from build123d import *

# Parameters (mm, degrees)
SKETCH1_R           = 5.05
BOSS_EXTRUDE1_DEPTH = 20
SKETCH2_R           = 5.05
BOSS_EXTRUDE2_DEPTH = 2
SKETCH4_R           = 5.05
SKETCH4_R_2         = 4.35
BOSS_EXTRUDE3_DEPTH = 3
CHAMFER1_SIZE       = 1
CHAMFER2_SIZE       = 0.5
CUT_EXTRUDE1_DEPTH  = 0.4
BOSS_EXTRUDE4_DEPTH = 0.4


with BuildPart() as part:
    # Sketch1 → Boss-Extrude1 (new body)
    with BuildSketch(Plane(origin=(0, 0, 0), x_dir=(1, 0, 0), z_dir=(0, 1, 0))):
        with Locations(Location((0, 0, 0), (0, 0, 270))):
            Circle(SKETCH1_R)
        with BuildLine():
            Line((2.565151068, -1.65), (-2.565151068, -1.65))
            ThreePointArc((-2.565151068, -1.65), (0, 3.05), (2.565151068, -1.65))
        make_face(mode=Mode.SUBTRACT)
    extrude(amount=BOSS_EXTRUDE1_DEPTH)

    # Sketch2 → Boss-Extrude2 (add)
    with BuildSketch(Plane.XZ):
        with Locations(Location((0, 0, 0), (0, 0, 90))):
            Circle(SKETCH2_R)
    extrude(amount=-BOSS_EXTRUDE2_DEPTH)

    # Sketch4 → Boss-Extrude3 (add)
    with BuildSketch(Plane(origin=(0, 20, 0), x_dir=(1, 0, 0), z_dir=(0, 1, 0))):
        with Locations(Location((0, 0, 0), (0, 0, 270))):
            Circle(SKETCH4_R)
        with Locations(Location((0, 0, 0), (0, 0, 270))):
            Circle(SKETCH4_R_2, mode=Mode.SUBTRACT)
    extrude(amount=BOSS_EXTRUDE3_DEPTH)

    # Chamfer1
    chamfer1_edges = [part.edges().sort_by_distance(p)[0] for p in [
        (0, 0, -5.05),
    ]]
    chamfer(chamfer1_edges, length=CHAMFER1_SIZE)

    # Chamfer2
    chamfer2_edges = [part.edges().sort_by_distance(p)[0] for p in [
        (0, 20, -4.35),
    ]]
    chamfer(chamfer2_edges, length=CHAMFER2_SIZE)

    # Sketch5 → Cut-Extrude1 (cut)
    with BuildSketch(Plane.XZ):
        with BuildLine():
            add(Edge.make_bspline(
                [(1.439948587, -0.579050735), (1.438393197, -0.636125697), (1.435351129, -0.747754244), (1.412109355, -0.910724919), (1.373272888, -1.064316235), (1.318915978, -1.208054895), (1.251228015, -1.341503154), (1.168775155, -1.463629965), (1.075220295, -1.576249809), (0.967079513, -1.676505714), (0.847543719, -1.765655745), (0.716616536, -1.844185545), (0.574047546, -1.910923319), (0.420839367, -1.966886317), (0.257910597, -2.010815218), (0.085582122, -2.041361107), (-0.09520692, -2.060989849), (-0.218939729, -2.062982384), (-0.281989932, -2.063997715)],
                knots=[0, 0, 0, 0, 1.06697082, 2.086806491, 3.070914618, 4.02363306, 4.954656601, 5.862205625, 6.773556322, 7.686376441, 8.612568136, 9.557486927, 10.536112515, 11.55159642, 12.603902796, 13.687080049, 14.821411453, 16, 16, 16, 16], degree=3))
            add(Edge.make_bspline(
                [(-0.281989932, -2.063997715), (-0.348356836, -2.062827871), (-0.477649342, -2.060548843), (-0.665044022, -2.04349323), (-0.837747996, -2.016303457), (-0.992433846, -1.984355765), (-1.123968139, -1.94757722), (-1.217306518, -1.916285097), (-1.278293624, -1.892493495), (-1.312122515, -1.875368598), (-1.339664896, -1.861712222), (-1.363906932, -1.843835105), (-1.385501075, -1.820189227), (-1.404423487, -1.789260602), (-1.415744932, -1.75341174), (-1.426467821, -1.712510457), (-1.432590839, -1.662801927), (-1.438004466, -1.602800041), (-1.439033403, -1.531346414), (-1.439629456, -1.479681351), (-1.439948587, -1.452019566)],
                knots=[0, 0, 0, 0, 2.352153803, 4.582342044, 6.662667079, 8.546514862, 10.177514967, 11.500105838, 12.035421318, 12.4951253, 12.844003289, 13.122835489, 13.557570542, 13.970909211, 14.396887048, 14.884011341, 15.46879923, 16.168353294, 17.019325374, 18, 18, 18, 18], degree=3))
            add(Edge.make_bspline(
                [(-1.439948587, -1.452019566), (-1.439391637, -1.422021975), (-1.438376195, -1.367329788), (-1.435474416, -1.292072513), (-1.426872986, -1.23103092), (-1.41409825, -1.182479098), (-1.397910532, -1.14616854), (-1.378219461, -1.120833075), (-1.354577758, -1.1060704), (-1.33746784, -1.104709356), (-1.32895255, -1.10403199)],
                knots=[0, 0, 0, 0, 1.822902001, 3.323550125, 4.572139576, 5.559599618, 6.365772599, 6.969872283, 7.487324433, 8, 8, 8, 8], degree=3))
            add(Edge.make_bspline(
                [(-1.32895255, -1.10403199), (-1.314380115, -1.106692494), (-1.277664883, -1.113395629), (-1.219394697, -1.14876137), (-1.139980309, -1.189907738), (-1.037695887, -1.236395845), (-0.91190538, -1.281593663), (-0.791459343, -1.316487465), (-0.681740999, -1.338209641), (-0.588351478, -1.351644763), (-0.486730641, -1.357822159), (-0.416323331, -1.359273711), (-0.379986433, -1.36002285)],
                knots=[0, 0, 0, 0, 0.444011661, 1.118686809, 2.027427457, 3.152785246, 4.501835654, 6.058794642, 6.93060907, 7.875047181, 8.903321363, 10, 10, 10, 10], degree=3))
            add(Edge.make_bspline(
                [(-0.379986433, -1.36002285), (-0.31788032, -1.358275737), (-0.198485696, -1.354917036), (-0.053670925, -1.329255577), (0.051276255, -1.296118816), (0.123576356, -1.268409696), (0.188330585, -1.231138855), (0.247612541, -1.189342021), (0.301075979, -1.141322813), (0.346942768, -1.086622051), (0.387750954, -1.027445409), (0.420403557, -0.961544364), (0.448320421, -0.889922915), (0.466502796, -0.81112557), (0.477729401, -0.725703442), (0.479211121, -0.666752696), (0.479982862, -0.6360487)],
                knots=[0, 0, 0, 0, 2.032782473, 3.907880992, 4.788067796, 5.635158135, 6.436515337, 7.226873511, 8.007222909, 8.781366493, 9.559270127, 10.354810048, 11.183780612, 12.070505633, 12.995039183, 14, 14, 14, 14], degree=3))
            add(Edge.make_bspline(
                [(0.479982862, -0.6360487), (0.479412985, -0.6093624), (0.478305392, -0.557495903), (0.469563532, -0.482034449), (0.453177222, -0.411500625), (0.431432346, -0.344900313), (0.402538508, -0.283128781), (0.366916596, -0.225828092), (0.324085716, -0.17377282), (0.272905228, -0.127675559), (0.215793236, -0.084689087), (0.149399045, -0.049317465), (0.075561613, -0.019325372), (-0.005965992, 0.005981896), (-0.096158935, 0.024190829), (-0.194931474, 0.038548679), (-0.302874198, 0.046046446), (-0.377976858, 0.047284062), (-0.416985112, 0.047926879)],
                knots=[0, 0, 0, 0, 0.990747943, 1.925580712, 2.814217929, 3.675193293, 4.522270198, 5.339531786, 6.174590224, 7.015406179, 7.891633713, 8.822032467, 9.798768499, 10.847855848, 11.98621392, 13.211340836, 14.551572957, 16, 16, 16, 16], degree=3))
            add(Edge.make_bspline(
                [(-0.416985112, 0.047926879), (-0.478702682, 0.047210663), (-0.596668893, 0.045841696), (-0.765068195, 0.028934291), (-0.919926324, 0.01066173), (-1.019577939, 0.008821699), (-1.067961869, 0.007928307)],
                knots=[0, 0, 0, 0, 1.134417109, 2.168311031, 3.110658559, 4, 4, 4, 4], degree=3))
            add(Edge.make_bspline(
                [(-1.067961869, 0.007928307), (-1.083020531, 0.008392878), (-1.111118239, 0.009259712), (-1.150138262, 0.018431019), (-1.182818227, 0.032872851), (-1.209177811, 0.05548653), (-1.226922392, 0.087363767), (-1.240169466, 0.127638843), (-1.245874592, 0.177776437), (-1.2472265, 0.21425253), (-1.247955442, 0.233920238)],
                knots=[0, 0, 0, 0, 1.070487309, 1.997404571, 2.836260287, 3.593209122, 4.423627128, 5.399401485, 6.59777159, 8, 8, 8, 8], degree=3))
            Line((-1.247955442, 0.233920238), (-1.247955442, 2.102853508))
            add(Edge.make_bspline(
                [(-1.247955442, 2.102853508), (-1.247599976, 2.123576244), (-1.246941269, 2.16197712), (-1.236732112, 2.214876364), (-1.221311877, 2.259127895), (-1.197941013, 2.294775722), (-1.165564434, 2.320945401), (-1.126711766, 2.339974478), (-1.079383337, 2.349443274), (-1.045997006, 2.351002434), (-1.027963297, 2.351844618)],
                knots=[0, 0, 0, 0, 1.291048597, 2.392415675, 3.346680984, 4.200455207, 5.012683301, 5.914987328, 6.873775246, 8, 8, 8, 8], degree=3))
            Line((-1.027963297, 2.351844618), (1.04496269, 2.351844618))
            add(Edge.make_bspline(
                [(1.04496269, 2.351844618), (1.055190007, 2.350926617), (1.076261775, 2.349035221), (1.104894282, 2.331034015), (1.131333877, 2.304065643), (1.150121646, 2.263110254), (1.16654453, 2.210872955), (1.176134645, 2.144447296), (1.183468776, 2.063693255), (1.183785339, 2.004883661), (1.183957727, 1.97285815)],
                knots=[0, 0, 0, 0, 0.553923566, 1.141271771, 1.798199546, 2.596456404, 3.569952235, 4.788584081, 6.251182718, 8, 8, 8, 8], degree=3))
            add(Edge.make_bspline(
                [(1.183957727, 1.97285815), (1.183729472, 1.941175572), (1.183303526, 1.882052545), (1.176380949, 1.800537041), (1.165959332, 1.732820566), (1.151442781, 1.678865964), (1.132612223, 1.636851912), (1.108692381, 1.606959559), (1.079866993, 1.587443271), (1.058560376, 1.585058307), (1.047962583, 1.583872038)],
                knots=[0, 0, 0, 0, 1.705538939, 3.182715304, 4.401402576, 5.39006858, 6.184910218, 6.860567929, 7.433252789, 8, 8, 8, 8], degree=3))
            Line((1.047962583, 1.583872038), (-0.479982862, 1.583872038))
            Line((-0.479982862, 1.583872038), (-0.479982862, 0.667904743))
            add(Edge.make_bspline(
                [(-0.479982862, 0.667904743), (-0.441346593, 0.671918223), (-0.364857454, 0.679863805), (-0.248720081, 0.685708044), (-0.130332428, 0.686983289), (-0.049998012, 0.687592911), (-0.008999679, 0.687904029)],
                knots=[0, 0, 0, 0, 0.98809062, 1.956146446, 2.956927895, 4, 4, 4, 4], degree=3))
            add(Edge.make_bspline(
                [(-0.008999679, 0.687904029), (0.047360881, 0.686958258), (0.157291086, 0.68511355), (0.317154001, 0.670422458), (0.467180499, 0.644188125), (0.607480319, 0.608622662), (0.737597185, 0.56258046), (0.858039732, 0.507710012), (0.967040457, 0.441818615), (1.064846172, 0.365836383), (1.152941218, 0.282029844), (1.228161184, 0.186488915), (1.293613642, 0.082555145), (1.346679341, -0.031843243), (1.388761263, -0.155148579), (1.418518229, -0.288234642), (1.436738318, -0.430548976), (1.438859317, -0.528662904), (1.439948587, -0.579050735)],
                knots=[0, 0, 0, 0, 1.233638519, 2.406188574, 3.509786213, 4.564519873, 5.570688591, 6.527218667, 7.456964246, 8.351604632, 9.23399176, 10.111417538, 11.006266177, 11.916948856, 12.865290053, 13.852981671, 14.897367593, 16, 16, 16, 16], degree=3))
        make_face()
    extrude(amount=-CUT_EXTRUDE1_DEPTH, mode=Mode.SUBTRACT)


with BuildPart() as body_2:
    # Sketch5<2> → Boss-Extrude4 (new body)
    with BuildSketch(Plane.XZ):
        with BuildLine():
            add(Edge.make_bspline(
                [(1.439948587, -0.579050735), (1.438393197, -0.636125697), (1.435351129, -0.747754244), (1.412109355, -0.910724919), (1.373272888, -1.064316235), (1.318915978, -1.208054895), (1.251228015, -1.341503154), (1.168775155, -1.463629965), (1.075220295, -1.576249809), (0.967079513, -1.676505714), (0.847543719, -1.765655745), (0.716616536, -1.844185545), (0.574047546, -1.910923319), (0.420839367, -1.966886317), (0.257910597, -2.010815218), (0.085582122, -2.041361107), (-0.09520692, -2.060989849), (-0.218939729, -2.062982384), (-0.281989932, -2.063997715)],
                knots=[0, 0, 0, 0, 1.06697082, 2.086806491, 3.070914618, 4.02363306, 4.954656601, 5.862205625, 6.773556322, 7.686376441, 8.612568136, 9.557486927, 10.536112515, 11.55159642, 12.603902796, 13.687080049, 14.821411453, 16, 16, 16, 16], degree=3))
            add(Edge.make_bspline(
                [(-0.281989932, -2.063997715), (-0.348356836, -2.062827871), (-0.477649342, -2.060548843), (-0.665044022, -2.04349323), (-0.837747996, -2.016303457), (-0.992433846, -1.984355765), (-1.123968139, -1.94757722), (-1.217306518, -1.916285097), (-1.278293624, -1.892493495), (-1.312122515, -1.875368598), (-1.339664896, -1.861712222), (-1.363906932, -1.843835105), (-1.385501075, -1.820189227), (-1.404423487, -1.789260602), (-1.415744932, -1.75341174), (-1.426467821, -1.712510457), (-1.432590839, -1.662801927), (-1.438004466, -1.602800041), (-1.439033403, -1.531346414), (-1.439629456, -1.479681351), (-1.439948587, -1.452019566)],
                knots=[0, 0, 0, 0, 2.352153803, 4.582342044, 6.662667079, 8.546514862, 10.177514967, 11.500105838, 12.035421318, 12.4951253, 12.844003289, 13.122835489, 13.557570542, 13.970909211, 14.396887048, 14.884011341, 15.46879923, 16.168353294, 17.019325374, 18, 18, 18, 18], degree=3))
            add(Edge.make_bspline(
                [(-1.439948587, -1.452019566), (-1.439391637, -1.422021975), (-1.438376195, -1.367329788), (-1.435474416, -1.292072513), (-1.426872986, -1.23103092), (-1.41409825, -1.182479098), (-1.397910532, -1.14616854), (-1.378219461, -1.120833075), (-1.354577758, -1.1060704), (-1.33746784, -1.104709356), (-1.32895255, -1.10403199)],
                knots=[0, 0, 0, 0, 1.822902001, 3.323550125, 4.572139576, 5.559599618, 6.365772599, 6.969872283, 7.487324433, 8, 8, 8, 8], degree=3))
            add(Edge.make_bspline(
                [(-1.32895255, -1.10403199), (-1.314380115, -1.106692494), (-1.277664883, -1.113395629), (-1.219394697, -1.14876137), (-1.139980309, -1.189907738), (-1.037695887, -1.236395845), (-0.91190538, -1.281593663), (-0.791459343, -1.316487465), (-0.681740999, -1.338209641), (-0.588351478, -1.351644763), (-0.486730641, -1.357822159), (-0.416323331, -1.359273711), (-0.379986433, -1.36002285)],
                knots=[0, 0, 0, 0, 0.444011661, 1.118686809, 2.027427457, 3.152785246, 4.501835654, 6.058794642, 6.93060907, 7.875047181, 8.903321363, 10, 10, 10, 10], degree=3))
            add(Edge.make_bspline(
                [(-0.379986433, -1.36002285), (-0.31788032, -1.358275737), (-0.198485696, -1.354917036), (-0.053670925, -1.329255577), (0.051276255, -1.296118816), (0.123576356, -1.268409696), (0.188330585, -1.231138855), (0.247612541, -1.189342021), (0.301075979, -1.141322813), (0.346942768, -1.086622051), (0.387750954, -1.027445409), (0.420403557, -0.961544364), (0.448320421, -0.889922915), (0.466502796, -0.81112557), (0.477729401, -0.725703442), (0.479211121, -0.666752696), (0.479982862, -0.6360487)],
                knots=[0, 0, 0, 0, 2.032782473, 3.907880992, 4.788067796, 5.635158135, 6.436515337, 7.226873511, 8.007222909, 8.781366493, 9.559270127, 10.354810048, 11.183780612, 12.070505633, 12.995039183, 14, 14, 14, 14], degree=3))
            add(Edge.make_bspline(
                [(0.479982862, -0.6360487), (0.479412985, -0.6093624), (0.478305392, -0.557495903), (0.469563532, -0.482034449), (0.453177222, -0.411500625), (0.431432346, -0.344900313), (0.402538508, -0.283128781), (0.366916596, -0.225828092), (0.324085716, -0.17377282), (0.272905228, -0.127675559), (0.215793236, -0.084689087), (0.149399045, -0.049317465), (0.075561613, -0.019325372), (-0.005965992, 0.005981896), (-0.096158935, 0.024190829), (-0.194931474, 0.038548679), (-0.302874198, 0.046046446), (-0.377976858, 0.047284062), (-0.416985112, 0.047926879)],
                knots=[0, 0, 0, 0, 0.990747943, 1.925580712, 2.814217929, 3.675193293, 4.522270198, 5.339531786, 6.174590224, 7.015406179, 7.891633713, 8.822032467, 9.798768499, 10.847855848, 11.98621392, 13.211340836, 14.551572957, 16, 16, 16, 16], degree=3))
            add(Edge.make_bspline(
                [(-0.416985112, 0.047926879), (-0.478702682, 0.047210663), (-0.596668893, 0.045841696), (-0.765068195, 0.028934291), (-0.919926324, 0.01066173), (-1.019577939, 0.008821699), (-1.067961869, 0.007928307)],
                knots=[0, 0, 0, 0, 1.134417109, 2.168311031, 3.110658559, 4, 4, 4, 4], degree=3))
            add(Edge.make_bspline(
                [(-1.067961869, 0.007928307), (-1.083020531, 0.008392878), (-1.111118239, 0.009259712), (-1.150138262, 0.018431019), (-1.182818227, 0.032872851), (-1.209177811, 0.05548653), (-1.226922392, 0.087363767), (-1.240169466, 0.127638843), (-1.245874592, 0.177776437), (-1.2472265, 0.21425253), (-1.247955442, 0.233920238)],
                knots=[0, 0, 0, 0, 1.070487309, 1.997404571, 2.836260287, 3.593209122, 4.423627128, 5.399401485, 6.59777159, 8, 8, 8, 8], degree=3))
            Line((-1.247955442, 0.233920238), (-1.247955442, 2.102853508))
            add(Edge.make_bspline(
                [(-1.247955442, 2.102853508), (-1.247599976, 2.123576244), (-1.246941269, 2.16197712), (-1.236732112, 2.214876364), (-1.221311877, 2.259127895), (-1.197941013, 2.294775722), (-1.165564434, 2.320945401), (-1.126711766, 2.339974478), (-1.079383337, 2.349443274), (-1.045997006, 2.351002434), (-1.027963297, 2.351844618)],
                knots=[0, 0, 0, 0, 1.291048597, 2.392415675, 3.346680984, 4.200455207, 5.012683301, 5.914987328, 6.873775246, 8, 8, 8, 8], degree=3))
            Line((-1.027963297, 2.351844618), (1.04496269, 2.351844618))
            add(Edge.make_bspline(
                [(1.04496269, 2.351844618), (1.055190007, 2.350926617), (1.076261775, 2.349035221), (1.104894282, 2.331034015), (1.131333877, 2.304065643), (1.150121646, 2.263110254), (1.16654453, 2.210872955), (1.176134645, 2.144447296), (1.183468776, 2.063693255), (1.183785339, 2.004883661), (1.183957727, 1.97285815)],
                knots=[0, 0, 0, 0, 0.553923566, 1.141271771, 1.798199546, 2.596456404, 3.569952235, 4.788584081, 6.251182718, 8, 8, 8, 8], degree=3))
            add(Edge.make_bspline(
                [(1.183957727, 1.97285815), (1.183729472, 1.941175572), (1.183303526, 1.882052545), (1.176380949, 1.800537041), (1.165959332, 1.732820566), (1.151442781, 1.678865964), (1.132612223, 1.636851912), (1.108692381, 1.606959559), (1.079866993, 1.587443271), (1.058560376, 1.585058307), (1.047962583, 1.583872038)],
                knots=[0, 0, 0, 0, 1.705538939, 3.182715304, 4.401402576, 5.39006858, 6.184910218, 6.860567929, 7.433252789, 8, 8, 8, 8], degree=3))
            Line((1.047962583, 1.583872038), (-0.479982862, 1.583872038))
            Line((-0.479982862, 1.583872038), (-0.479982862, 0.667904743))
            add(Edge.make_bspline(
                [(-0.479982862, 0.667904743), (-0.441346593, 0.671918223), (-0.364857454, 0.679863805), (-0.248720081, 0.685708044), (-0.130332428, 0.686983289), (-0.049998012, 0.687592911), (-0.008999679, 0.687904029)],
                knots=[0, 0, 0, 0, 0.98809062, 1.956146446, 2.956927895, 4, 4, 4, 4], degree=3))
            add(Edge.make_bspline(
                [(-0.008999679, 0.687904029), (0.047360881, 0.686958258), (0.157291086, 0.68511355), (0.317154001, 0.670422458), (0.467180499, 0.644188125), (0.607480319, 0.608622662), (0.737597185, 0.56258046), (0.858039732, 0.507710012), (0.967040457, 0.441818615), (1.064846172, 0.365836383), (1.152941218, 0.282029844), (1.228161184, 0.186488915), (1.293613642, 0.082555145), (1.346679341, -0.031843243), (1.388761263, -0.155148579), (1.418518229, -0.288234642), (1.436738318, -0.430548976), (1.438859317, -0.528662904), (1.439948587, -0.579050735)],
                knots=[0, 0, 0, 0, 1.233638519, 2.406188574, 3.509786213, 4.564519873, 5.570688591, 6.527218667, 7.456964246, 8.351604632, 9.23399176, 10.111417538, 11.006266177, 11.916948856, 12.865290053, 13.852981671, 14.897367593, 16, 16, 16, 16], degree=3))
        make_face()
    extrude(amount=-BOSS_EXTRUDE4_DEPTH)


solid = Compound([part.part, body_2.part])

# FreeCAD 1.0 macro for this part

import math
import FreeCAD as App
import Part
import Sketcher


def edges_at(feature, points):
    """Names of the edges that pass closest to the given points."""
    edges = feature.Shape.Edges
    near = lambda p: min(range(len(edges)), key=lambda i: edges[i].distToShape(Part.Vertex(*p))[0])
    return sorted({f"Edge{near(p) + 1}" for p in points})

doc = App.newDocument("Part")
body = doc.addObject("PartDesign::Body", "Body")

# Sketch on XZ plane
sketch1 = body.newObject("Sketcher::SketchObject", "Sketch")
sketch1.AttachmentSupport = (doc.getObject("XZ_Plane"), [""])
sketch1.MapMode = "FlatFace"
sketch1.addGeometry(Part.Circle(App.Vector(0, 0, 0), App.Vector(0, 0, 1), 5), False)
sketch1.addGeometry(Part.ArcOfCircle(Part.Circle(App.Vector(0, 0, 0), App.Vector(0, 0, 1), 3), math.radians(147), math.radians(393)), False)
sketch1.addGeometry(Part.LineSegment(App.Vector(2.6, 1.6, 0), App.Vector(-2.6, 1.6, 0)), False)
sketch1.addConstraint(Sketcher.Constraint("Coincident", 1, 1, 2, 2))
sketch1.addConstraint(Sketcher.Constraint("Coincident", 2, 1, 1, 2))
sketch1.addConstraint(Sketcher.Constraint("Horizontal", 2))
sketch1.addConstraint(Sketcher.Constraint("Coincident", 0, 3, -1, 1))
sketch1.addConstraint(Sketcher.Constraint("Coincident", 1, 3, -1, 1))
sketch1.addConstraint(Sketcher.Constraint("Diameter", 0, 10.1))
sketch1.addConstraint(Sketcher.Constraint("Radius", 1, 3.05))
sketch1.addConstraint(Sketcher.Constraint("DistanceY", -1, 1, 1, 1, 1.65))
pad1 = body.newObject("PartDesign::Pad", "Pad")
pad1.Profile = sketch1
pad1.Length = 20
pad1.Reversed = True

# Sketch on XZ plane
sketch2 = body.newObject("Sketcher::SketchObject", "Sketch001")
sketch2.AttachmentSupport = (doc.getObject("XZ_Plane"), [""])
sketch2.MapMode = "FlatFace"
sketch2.addGeometry(Part.Circle(App.Vector(0, 0, 0), App.Vector(0, 0, 1), 5), False)
sketch2.addConstraint(Sketcher.Constraint("Coincident", 0, 3, -1, 1))
sketch2.addConstraint(Sketcher.Constraint("Diameter", 0, 10.1))
pad2 = body.newObject("PartDesign::Pad", "Pad001")
pad2.Profile = sketch2
pad2.Length = 2
pad2.Reversed = True

# Sketch on XZ plane
sketch3 = body.newObject("Sketcher::SketchObject", "Sketch002")
sketch3.AttachmentSupport = (doc.getObject("XZ_Plane"), [""])
sketch3.MapMode = "FlatFace"
sketch3.AttachmentOffset = App.Placement(App.Vector(0, 0, -20), App.Rotation())
sketch3.addGeometry(Part.Circle(App.Vector(0, 0, 0), App.Vector(0, 0, 1), 5), False)
sketch3.addGeometry(Part.Circle(App.Vector(0, 0, 0), App.Vector(0, 0, 1), 4.3), False)
sketch3.addConstraint(Sketcher.Constraint("Coincident", 0, 3, -1, 1))
sketch3.addConstraint(Sketcher.Constraint("Coincident", 1, 3, -1, 1))
sketch3.addConstraint(Sketcher.Constraint("Diameter", 0, 10.1))
sketch3.addConstraint(Sketcher.Constraint("Diameter", 1, 8.7))
pad3 = body.newObject("PartDesign::Pad", "Pad002")
pad3.Profile = sketch3
pad3.Length = 3
pad3.Reversed = True
doc.recompute()

chamfer = body.newObject("PartDesign::Chamfer", "Chamfer")
chamfer.Base = (pad3, edges_at(pad3, [(0, 0, -5.05)]))
chamfer.Size = 1
doc.recompute()

chamfer2 = body.newObject("PartDesign::Chamfer", "Chamfer001")
chamfer2.Base = (chamfer, edges_at(chamfer, [(0, 20, -4.35)]))
chamfer2.Size = 0.5

# Sketch on XZ plane
sketch4 = body.newObject("Sketcher::SketchObject", "Sketch003")
sketch4.AttachmentSupport = (doc.getObject("XZ_Plane"), [""])
sketch4.MapMode = "FlatFace"
sketch4.addGeometry(Part.BSplineCurve([App.Vector(1.439949, -0.579051, 0), App.Vector(1.438393, -0.636126, 0), App.Vector(1.435351, -0.747754, 0), App.Vector(1.412109, -0.910725, 0), App.Vector(1.373273, -1.064316, 0), App.Vector(1.318916, -1.208055, 0), App.Vector(1.251228, -1.341503, 0), App.Vector(1.168775, -1.46363, 0), App.Vector(1.07522, -1.57625, 0), App.Vector(0.96708, -1.676506, 0), App.Vector(0.847544, -1.765656, 0), App.Vector(0.716617, -1.844186, 0), App.Vector(0.574048, -1.910923, 0), App.Vector(0.420839, -1.966886, 0), App.Vector(0.257911, -2.010815, 0), App.Vector(0.085582, -2.041361, 0), App.Vector(-0.095207, -2.06099, 0), App.Vector(-0.21894, -2.062982, 0), App.Vector(-0.28199, -2.063998, 0)], [4, 1, 1, 1, 1, 1, 1, 1, 1, 1, 1, 1, 1, 1, 1, 1, 4], [0, 1.06697082, 2.086806491, 3.070914618, 4.02363306, 4.954656601, 5.862205625, 6.773556322, 7.686376441, 8.612568136, 9.557486927, 10.536112515, 11.55159642, 12.603902796, 13.687080049, 14.821411453, 16], False, 3, [1, 1, 1, 1, 1, 1, 1, 1, 1, 1, 1, 1, 1, 1, 1, 1, 1, 1, 1], False), False)
sketch4.addGeometry(Part.BSplineCurve([App.Vector(-0.009, 0.687904, 0), App.Vector(0.047361, 0.686958, 0), App.Vector(0.157291, 0.685114, 0), App.Vector(0.317154, 0.670422, 0), App.Vector(0.46718, 0.644188, 0), App.Vector(0.60748, 0.608623, 0), App.Vector(0.737597, 0.56258, 0), App.Vector(0.85804, 0.50771, 0), App.Vector(0.96704, 0.441819, 0), App.Vector(1.064846, 0.365836, 0), App.Vector(1.152941, 0.28203, 0), App.Vector(1.228161, 0.186489, 0), App.Vector(1.293614, 0.082555, 0), App.Vector(1.346679, -0.031843, 0), App.Vector(1.388761, -0.155149, 0), App.Vector(1.418518, -0.288235, 0), App.Vector(1.436738, -0.430549, 0), App.Vector(1.438859, -0.528663, 0), App.Vector(1.439949, -0.579051, 0)], [4, 1, 1, 1, 1, 1, 1, 1, 1, 1, 1, 1, 1, 1, 1, 1, 4], [0, 1.233638519, 2.406188574, 3.509786213, 4.564519873, 5.570688591, 6.527218667, 7.456964246, 8.351604632, 9.23399176, 10.111417538, 11.006266177, 11.916948856, 12.865290053, 13.852981671, 14.897367593, 16], False, 3, [1, 1, 1, 1, 1, 1, 1, 1, 1, 1, 1, 1, 1, 1, 1, 1, 1, 1, 1], False), False)
sketch4.addGeometry(Part.BSplineCurve([App.Vector(-0.479983, 0.667905, 0), App.Vector(-0.441347, 0.671918, 0), App.Vector(-0.364857, 0.679864, 0), App.Vector(-0.24872, 0.685708, 0), App.Vector(-0.130332, 0.686983, 0), App.Vector(-0.049998, 0.687593, 0), App.Vector(-0.009, 0.687904, 0)], [4, 1, 1, 1, 4], [0, 0.98809062, 1.956146446, 2.956927895, 4], False, 3, [1, 1, 1, 1, 1, 1, 1], False), False)
sketch4.addGeometry(Part.LineSegment(App.Vector(-0.479983, 0.667905, 0), App.Vector(-0.479983, 1.583872, 0)), False)
sketch4.addGeometry(Part.LineSegment(App.Vector(-0.479983, 1.583872, 0), App.Vector(1.047963, 1.583872, 0)), False)
sketch4.addGeometry(Part.BSplineCurve([App.Vector(1.183958, 1.972858, 0), App.Vector(1.183729, 1.941176, 0), App.Vector(1.183304, 1.882053, 0), App.Vector(1.176381, 1.800537, 0), App.Vector(1.165959, 1.732821, 0), App.Vector(1.151443, 1.678866, 0), App.Vector(1.132612, 1.636852, 0), App.Vector(1.108692, 1.60696, 0), App.Vector(1.079867, 1.587443, 0), App.Vector(1.05856, 1.585058, 0), App.Vector(1.047963, 1.583872, 0)], [4, 1, 1, 1, 1, 1, 1, 1, 4], [0, 1.705538939, 3.182715304, 4.401402576, 5.39006858, 6.184910218, 6.860567929, 7.433252789, 8], False, 3, [1, 1, 1, 1, 1, 1, 1, 1, 1, 1, 1], False), False)
sketch4.addGeometry(Part.BSplineCurve([App.Vector(1.044963, 2.351845, 0), App.Vector(1.05519, 2.350927, 0), App.Vector(1.076262, 2.349035, 0), App.Vector(1.104894, 2.331034, 0), App.Vector(1.131334, 2.304066, 0), App.Vector(1.150122, 2.26311, 0), App.Vector(1.166545, 2.210873, 0), App.Vector(1.176135, 2.144447, 0), App.Vector(1.183469, 2.063693, 0), App.Vector(1.183785, 2.004884, 0), App.Vector(1.183958, 1.972858, 0)], [4, 1, 1, 1, 1, 1, 1, 1, 4], [0, 0.553923566, 1.141271771, 1.798199546, 2.596456404, 3.569952235, 4.788584081, 6.251182718, 8], False, 3, [1, 1, 1, 1, 1, 1, 1, 1, 1, 1, 1], False), False)
sketch4.addGeometry(Part.LineSegment(App.Vector(1.044963, 2.351845, 0), App.Vector(-1.027963, 2.351845, 0)), False)
sketch4.addGeometry(Part.BSplineCurve([App.Vector(-1.247955, 2.102854, 0), App.Vector(-1.2476, 2.123576, 0), App.Vector(-1.246941, 2.161977, 0), App.Vector(-1.236732, 2.214876, 0), App.Vector(-1.221312, 2.259128, 0), App.Vector(-1.197941, 2.294776, 0), App.Vector(-1.165564, 2.320945, 0), App.Vector(-1.126712, 2.339974, 0), App.Vector(-1.079383, 2.349443, 0), App.Vector(-1.045997, 2.351002, 0), App.Vector(-1.027963, 2.351845, 0)], [4, 1, 1, 1, 1, 1, 1, 1, 4], [0, 1.291048597, 2.392415675, 3.346680984, 4.200455207, 5.012683301, 5.914987328, 6.873775246, 8], False, 3, [1, 1, 1, 1, 1, 1, 1, 1, 1, 1, 1], False), False)
sketch4.addGeometry(Part.LineSegment(App.Vector(-1.247955, 2.102854, 0), App.Vector(-1.247955, 0.23392, 0)), False)
sketch4.addGeometry(Part.BSplineCurve([App.Vector(-1.067962, 0.007928, 0), App.Vector(-1.083021, 0.008393, 0), App.Vector(-1.111118, 0.00926, 0), App.Vector(-1.150138, 0.018431, 0), App.Vector(-1.182818, 0.032873, 0), App.Vector(-1.209178, 0.055487, 0), App.Vector(-1.226922, 0.087364, 0), App.Vector(-1.240169, 0.127639, 0), App.Vector(-1.245875, 0.177776, 0), App.Vector(-1.247227, 0.214253, 0), App.Vector(-1.247955, 0.23392, 0)], [4, 1, 1, 1, 1, 1, 1, 1, 4], [0, 1.070487309, 1.997404571, 2.836260287, 3.593209122, 4.423627128, 5.399401485, 6.59777159, 8], False, 3, [1, 1, 1, 1, 1, 1, 1, 1, 1, 1, 1], False), False)
sketch4.addGeometry(Part.BSplineCurve([App.Vector(-0.416985, 0.047927, 0), App.Vector(-0.478703, 0.047211, 0), App.Vector(-0.596669, 0.045842, 0), App.Vector(-0.765068, 0.028934, 0), App.Vector(-0.919926, 0.010662, 0), App.Vector(-1.019578, 0.008822, 0), App.Vector(-1.067962, 0.007928, 0)], [4, 1, 1, 1, 4], [0, 1.134417109, 2.168311031, 3.110658559, 4], False, 3, [1, 1, 1, 1, 1, 1, 1], False), False)
sketch4.addGeometry(Part.BSplineCurve([App.Vector(0.479983, -0.636049, 0), App.Vector(0.479413, -0.609362, 0), App.Vector(0.478305, -0.557496, 0), App.Vector(0.469564, -0.482034, 0), App.Vector(0.453177, -0.411501, 0), App.Vector(0.431432, -0.3449, 0), App.Vector(0.402539, -0.283129, 0), App.Vector(0.366917, -0.225828, 0), App.Vector(0.324086, -0.173773, 0), App.Vector(0.272905, -0.127676, 0), App.Vector(0.215793, -0.084689, 0), App.Vector(0.149399, -0.049317, 0), App.Vector(0.075562, -0.019325, 0), App.Vector(-0.005966, 0.005982, 0), App.Vector(-0.096159, 0.024191, 0), App.Vector(-0.194931, 0.038549, 0), App.Vector(-0.302874, 0.046046, 0), App.Vector(-0.377977, 0.047284, 0), App.Vector(-0.416985, 0.047927, 0)], [4, 1, 1, 1, 1, 1, 1, 1, 1, 1, 1, 1, 1, 1, 1, 1, 4], [0, 0.990747943, 1.925580712, 2.814217929, 3.675193293, 4.522270198, 5.339531786, 6.174590224, 7.015406179, 7.891633713, 8.822032467, 9.798768499, 10.847855848, 11.98621392, 13.211340836, 14.551572957, 16], False, 3, [1, 1, 1, 1, 1, 1, 1, 1, 1, 1, 1, 1, 1, 1, 1, 1, 1, 1, 1], False), False)
sketch4.addGeometry(Part.BSplineCurve([App.Vector(-0.379986, -1.360023, 0), App.Vector(-0.31788, -1.358276, 0), App.Vector(-0.198486, -1.354917, 0), App.Vector(-0.053671, -1.329256, 0), App.Vector(0.051276, -1.296119, 0), App.Vector(0.123576, -1.26841, 0), App.Vector(0.188331, -1.231139, 0), App.Vector(0.247613, -1.189342, 0), App.Vector(0.301076, -1.141323, 0), App.Vector(0.346943, -1.086622, 0), App.Vector(0.387751, -1.027445, 0), App.Vector(0.420404, -0.961544, 0), App.Vector(0.44832, -0.889923, 0), App.Vector(0.466503, -0.811126, 0), App.Vector(0.477729, -0.725703, 0), App.Vector(0.479211, -0.666753, 0), App.Vector(0.479983, -0.636049, 0)], [4, 1, 1, 1, 1, 1, 1, 1, 1, 1, 1, 1, 1, 1, 4], [0, 2.032782473, 3.907880992, 4.788067796, 5.635158135, 6.436515337, 7.226873511, 8.007222909, 8.781366493, 9.559270127, 10.354810048, 11.183780612, 12.070505633, 12.995039183, 14], False, 3, [1, 1, 1, 1, 1, 1, 1, 1, 1, 1, 1, 1, 1, 1, 1, 1, 1], False), False)
sketch4.addGeometry(Part.BSplineCurve([App.Vector(-1.328953, -1.104032, 0), App.Vector(-1.31438, -1.106692, 0), App.Vector(-1.277665, -1.113396, 0), App.Vector(-1.219395, -1.148761, 0), App.Vector(-1.13998, -1.189908, 0), App.Vector(-1.037696, -1.236396, 0), App.Vector(-0.911905, -1.281594, 0), App.Vector(-0.791459, -1.316487, 0), App.Vector(-0.681741, -1.33821, 0), App.Vector(-0.588351, -1.351645, 0), App.Vector(-0.486731, -1.357822, 0), App.Vector(-0.416323, -1.359274, 0), App.Vector(-0.379986, -1.360023, 0)], [4, 1, 1, 1, 1, 1, 1, 1, 1, 1, 4], [0, 0.444011661, 1.118686809, 2.027427457, 3.152785246, 4.501835654, 6.058794642, 6.93060907, 7.875047181, 8.903321363, 10], False, 3, [1, 1, 1, 1, 1, 1, 1, 1, 1, 1, 1, 1, 1], False), False)
sketch4.addGeometry(Part.BSplineCurve([App.Vector(-1.439949, -1.45202, 0), App.Vector(-1.439392, -1.422022, 0), App.Vector(-1.438376, -1.36733, 0), App.Vector(-1.435474, -1.292073, 0), App.Vector(-1.426873, -1.231031, 0), App.Vector(-1.414098, -1.182479, 0), App.Vector(-1.397911, -1.146169, 0), App.Vector(-1.378219, -1.120833, 0), App.Vector(-1.354578, -1.10607, 0), App.Vector(-1.337468, -1.104709, 0), App.Vector(-1.328953, -1.104032, 0)], [4, 1, 1, 1, 1, 1, 1, 1, 4], [0, 1.822902001, 3.323550125, 4.572139576, 5.559599618, 6.365772599, 6.969872283, 7.487324433, 8], False, 3, [1, 1, 1, 1, 1, 1, 1, 1, 1, 1, 1], False), False)
sketch4.addGeometry(Part.BSplineCurve([App.Vector(-0.28199, -2.063998, 0), App.Vector(-0.348357, -2.062828, 0), App.Vector(-0.477649, -2.060549, 0), App.Vector(-0.665044, -2.043493, 0), App.Vector(-0.837748, -2.016303, 0), App.Vector(-0.992434, -1.984356, 0), App.Vector(-1.123968, -1.947577, 0), App.Vector(-1.217307, -1.916285, 0), App.Vector(-1.278294, -1.892493, 0), App.Vector(-1.312123, -1.875369, 0), App.Vector(-1.339665, -1.861712, 0), App.Vector(-1.363907, -1.843835, 0), App.Vector(-1.385501, -1.820189, 0), App.Vector(-1.404423, -1.789261, 0), App.Vector(-1.415745, -1.753412, 0), App.Vector(-1.426468, -1.71251, 0), App.Vector(-1.432591, -1.662802, 0), App.Vector(-1.438004, -1.6028, 0), App.Vector(-1.439033, -1.531346, 0), App.Vector(-1.439629, -1.479681, 0), App.Vector(-1.439949, -1.45202, 0)], [4, 1, 1, 1, 1, 1, 1, 1, 1, 1, 1, 1, 1, 1, 1, 1, 1, 1, 4], [0, 2.352153803, 4.582342044, 6.662667079, 8.546514862, 10.177514967, 11.500105838, 12.035421318, 12.4951253, 12.844003289, 13.122835489, 13.557570542, 13.970909211, 14.396887048, 14.884011341, 15.46879923, 16.168353294, 17.019325374, 18], False, 3, [1, 1, 1, 1, 1, 1, 1, 1, 1, 1, 1, 1, 1, 1, 1, 1, 1, 1, 1, 1, 1], False), False)
sketch4.addConstraint(Sketcher.Constraint("Block", 0))
sketch4.addConstraint(Sketcher.Constraint("Block", 1))
sketch4.addConstraint(Sketcher.Constraint("Block", 2))
sketch4.addConstraint(Sketcher.Constraint("Block", 5))
sketch4.addConstraint(Sketcher.Constraint("Block", 6))
sketch4.addConstraint(Sketcher.Constraint("Block", 8))
sketch4.addConstraint(Sketcher.Constraint("Block", 10))
sketch4.addConstraint(Sketcher.Constraint("Block", 11))
sketch4.addConstraint(Sketcher.Constraint("Block", 12))
sketch4.addConstraint(Sketcher.Constraint("Block", 13))
sketch4.addConstraint(Sketcher.Constraint("Block", 14))
sketch4.addConstraint(Sketcher.Constraint("Block", 15))
sketch4.addConstraint(Sketcher.Constraint("Block", 16))
sketch4.addConstraint(Sketcher.Constraint("Coincident", 2, 1, 3, 1))
sketch4.addConstraint(Sketcher.Constraint("Coincident", 3, 2, 4, 1))
sketch4.addConstraint(Sketcher.Constraint("Coincident", 4, 2, 5, 2))
sketch4.addConstraint(Sketcher.Constraint("Coincident", 6, 1, 7, 1))
sketch4.addConstraint(Sketcher.Constraint("Coincident", 7, 2, 8, 2))
sketch4.addConstraint(Sketcher.Constraint("Coincident", 8, 1, 9, 1))
sketch4.addConstraint(Sketcher.Constraint("Coincident", 9, 2, 10, 2))
sketch4.addConstraint(Sketcher.Constraint("Vertical", 3))
sketch4.addConstraint(Sketcher.Constraint("Horizontal", 4))
pocket1 = body.newObject("PartDesign::Pocket", "Pocket")
pocket1.Profile = sketch4
pocket1.Length = 0.4
body2 = doc.addObject("PartDesign::Body", "Body001")

# Sketch on XZ plane
sketch5 = body2.newObject("Sketcher::SketchObject", "Sketch004")
sketch5.AttachmentSupport = (doc.getObject("XZ_Plane001"), [""])
sketch5.MapMode = "FlatFace"
sketch5.addGeometry(Part.BSplineCurve([App.Vector(1.439949, -0.579051, 0), App.Vector(1.438393, -0.636126, 0), App.Vector(1.435351, -0.747754, 0), App.Vector(1.412109, -0.910725, 0), App.Vector(1.373273, -1.064316, 0), App.Vector(1.318916, -1.208055, 0), App.Vector(1.251228, -1.341503, 0), App.Vector(1.168775, -1.46363, 0), App.Vector(1.07522, -1.57625, 0), App.Vector(0.96708, -1.676506, 0), App.Vector(0.847544, -1.765656, 0), App.Vector(0.716617, -1.844186, 0), App.Vector(0.574048, -1.910923, 0), App.Vector(0.420839, -1.966886, 0), App.Vector(0.257911, -2.010815, 0), App.Vector(0.085582, -2.041361, 0), App.Vector(-0.095207, -2.06099, 0), App.Vector(-0.21894, -2.062982, 0), App.Vector(-0.28199, -2.063998, 0)], [4, 1, 1, 1, 1, 1, 1, 1, 1, 1, 1, 1, 1, 1, 1, 1, 4], [0, 1.06697082, 2.086806491, 3.070914618, 4.02363306, 4.954656601, 5.862205625, 6.773556322, 7.686376441, 8.612568136, 9.557486927, 10.536112515, 11.55159642, 12.603902796, 13.687080049, 14.821411453, 16], False, 3, [1, 1, 1, 1, 1, 1, 1, 1, 1, 1, 1, 1, 1, 1, 1, 1, 1, 1, 1], False), False)
sketch5.addGeometry(Part.BSplineCurve([App.Vector(-0.009, 0.687904, 0), App.Vector(0.047361, 0.686958, 0), App.Vector(0.157291, 0.685114, 0), App.Vector(0.317154, 0.670422, 0), App.Vector(0.46718, 0.644188, 0), App.Vector(0.60748, 0.608623, 0), App.Vector(0.737597, 0.56258, 0), App.Vector(0.85804, 0.50771, 0), App.Vector(0.96704, 0.441819, 0), App.Vector(1.064846, 0.365836, 0), App.Vector(1.152941, 0.28203, 0), App.Vector(1.228161, 0.186489, 0), App.Vector(1.293614, 0.082555, 0), App.Vector(1.346679, -0.031843, 0), App.Vector(1.388761, -0.155149, 0), App.Vector(1.418518, -0.288235, 0), App.Vector(1.436738, -0.430549, 0), App.Vector(1.438859, -0.528663, 0), App.Vector(1.439949, -0.579051, 0)], [4, 1, 1, 1, 1, 1, 1, 1, 1, 1, 1, 1, 1, 1, 1, 1, 4], [0, 1.233638519, 2.406188574, 3.509786213, 4.564519873, 5.570688591, 6.527218667, 7.456964246, 8.351604632, 9.23399176, 10.111417538, 11.006266177, 11.916948856, 12.865290053, 13.852981671, 14.897367593, 16], False, 3, [1, 1, 1, 1, 1, 1, 1, 1, 1, 1, 1, 1, 1, 1, 1, 1, 1, 1, 1], False), False)
sketch5.addGeometry(Part.BSplineCurve([App.Vector(-0.479983, 0.667905, 0), App.Vector(-0.441347, 0.671918, 0), App.Vector(-0.364857, 0.679864, 0), App.Vector(-0.24872, 0.685708, 0), App.Vector(-0.130332, 0.686983, 0), App.Vector(-0.049998, 0.687593, 0), App.Vector(-0.009, 0.687904, 0)], [4, 1, 1, 1, 4], [0, 0.98809062, 1.956146446, 2.956927895, 4], False, 3, [1, 1, 1, 1, 1, 1, 1], False), False)
sketch5.addGeometry(Part.LineSegment(App.Vector(-0.479983, 0.667905, 0), App.Vector(-0.479983, 1.583872, 0)), False)
sketch5.addGeometry(Part.LineSegment(App.Vector(-0.479983, 1.583872, 0), App.Vector(1.047963, 1.583872, 0)), False)
sketch5.addGeometry(Part.BSplineCurve([App.Vector(1.183958, 1.972858, 0), App.Vector(1.183729, 1.941176, 0), App.Vector(1.183304, 1.882053, 0), App.Vector(1.176381, 1.800537, 0), App.Vector(1.165959, 1.732821, 0), App.Vector(1.151443, 1.678866, 0), App.Vector(1.132612, 1.636852, 0), App.Vector(1.108692, 1.60696, 0), App.Vector(1.079867, 1.587443, 0), App.Vector(1.05856, 1.585058, 0), App.Vector(1.047963, 1.583872, 0)], [4, 1, 1, 1, 1, 1, 1, 1, 4], [0, 1.705538939, 3.182715304, 4.401402576, 5.39006858, 6.184910218, 6.860567929, 7.433252789, 8], False, 3, [1, 1, 1, 1, 1, 1, 1, 1, 1, 1, 1], False), False)
sketch5.addGeometry(Part.BSplineCurve([App.Vector(1.044963, 2.351845, 0), App.Vector(1.05519, 2.350927, 0), App.Vector(1.076262, 2.349035, 0), App.Vector(1.104894, 2.331034, 0), App.Vector(1.131334, 2.304066, 0), App.Vector(1.150122, 2.26311, 0), App.Vector(1.166545, 2.210873, 0), App.Vector(1.176135, 2.144447, 0), App.Vector(1.183469, 2.063693, 0), App.Vector(1.183785, 2.004884, 0), App.Vector(1.183958, 1.972858, 0)], [4, 1, 1, 1, 1, 1, 1, 1, 4], [0, 0.553923566, 1.141271771, 1.798199546, 2.596456404, 3.569952235, 4.788584081, 6.251182718, 8], False, 3, [1, 1, 1, 1, 1, 1, 1, 1, 1, 1, 1], False), False)
sketch5.addGeometry(Part.LineSegment(App.Vector(1.044963, 2.351845, 0), App.Vector(-1.027963, 2.351845, 0)), False)
sketch5.addGeometry(Part.BSplineCurve([App.Vector(-1.247955, 2.102854, 0), App.Vector(-1.2476, 2.123576, 0), App.Vector(-1.246941, 2.161977, 0), App.Vector(-1.236732, 2.214876, 0), App.Vector(-1.221312, 2.259128, 0), App.Vector(-1.197941, 2.294776, 0), App.Vector(-1.165564, 2.320945, 0), App.Vector(-1.126712, 2.339974, 0), App.Vector(-1.079383, 2.349443, 0), App.Vector(-1.045997, 2.351002, 0), App.Vector(-1.027963, 2.351845, 0)], [4, 1, 1, 1, 1, 1, 1, 1, 4], [0, 1.291048597, 2.392415675, 3.346680984, 4.200455207, 5.012683301, 5.914987328, 6.873775246, 8], False, 3, [1, 1, 1, 1, 1, 1, 1, 1, 1, 1, 1], False), False)
sketch5.addGeometry(Part.LineSegment(App.Vector(-1.247955, 2.102854, 0), App.Vector(-1.247955, 0.23392, 0)), False)
sketch5.addGeometry(Part.BSplineCurve([App.Vector(-1.067962, 0.007928, 0), App.Vector(-1.083021, 0.008393, 0), App.Vector(-1.111118, 0.00926, 0), App.Vector(-1.150138, 0.018431, 0), App.Vector(-1.182818, 0.032873, 0), App.Vector(-1.209178, 0.055487, 0), App.Vector(-1.226922, 0.087364, 0), App.Vector(-1.240169, 0.127639, 0), App.Vector(-1.245875, 0.177776, 0), App.Vector(-1.247227, 0.214253, 0), App.Vector(-1.247955, 0.23392, 0)], [4, 1, 1, 1, 1, 1, 1, 1, 4], [0, 1.070487309, 1.997404571, 2.836260287, 3.593209122, 4.423627128, 5.399401485, 6.59777159, 8], False, 3, [1, 1, 1, 1, 1, 1, 1, 1, 1, 1, 1], False), False)
sketch5.addGeometry(Part.BSplineCurve([App.Vector(-0.416985, 0.047927, 0), App.Vector(-0.478703, 0.047211, 0), App.Vector(-0.596669, 0.045842, 0), App.Vector(-0.765068, 0.028934, 0), App.Vector(-0.919926, 0.010662, 0), App.Vector(-1.019578, 0.008822, 0), App.Vector(-1.067962, 0.007928, 0)], [4, 1, 1, 1, 4], [0, 1.134417109, 2.168311031, 3.110658559, 4], False, 3, [1, 1, 1, 1, 1, 1, 1], False), False)
sketch5.addGeometry(Part.BSplineCurve([App.Vector(0.479983, -0.636049, 0), App.Vector(0.479413, -0.609362, 0), App.Vector(0.478305, -0.557496, 0), App.Vector(0.469564, -0.482034, 0), App.Vector(0.453177, -0.411501, 0), App.Vector(0.431432, -0.3449, 0), App.Vector(0.402539, -0.283129, 0), App.Vector(0.366917, -0.225828, 0), App.Vector(0.324086, -0.173773, 0), App.Vector(0.272905, -0.127676, 0), App.Vector(0.215793, -0.084689, 0), App.Vector(0.149399, -0.049317, 0), App.Vector(0.075562, -0.019325, 0), App.Vector(-0.005966, 0.005982, 0), App.Vector(-0.096159, 0.024191, 0), App.Vector(-0.194931, 0.038549, 0), App.Vector(-0.302874, 0.046046, 0), App.Vector(-0.377977, 0.047284, 0), App.Vector(-0.416985, 0.047927, 0)], [4, 1, 1, 1, 1, 1, 1, 1, 1, 1, 1, 1, 1, 1, 1, 1, 4], [0, 0.990747943, 1.925580712, 2.814217929, 3.675193293, 4.522270198, 5.339531786, 6.174590224, 7.015406179, 7.891633713, 8.822032467, 9.798768499, 10.847855848, 11.98621392, 13.211340836, 14.551572957, 16], False, 3, [1, 1, 1, 1, 1, 1, 1, 1, 1, 1, 1, 1, 1, 1, 1, 1, 1, 1, 1], False), False)
sketch5.addGeometry(Part.BSplineCurve([App.Vector(-0.379986, -1.360023, 0), App.Vector(-0.31788, -1.358276, 0), App.Vector(-0.198486, -1.354917, 0), App.Vector(-0.053671, -1.329256, 0), App.Vector(0.051276, -1.296119, 0), App.Vector(0.123576, -1.26841, 0), App.Vector(0.188331, -1.231139, 0), App.Vector(0.247613, -1.189342, 0), App.Vector(0.301076, -1.141323, 0), App.Vector(0.346943, -1.086622, 0), App.Vector(0.387751, -1.027445, 0), App.Vector(0.420404, -0.961544, 0), App.Vector(0.44832, -0.889923, 0), App.Vector(0.466503, -0.811126, 0), App.Vector(0.477729, -0.725703, 0), App.Vector(0.479211, -0.666753, 0), App.Vector(0.479983, -0.636049, 0)], [4, 1, 1, 1, 1, 1, 1, 1, 1, 1, 1, 1, 1, 1, 4], [0, 2.032782473, 3.907880992, 4.788067796, 5.635158135, 6.436515337, 7.226873511, 8.007222909, 8.781366493, 9.559270127, 10.354810048, 11.183780612, 12.070505633, 12.995039183, 14], False, 3, [1, 1, 1, 1, 1, 1, 1, 1, 1, 1, 1, 1, 1, 1, 1, 1, 1], False), False)
sketch5.addGeometry(Part.BSplineCurve([App.Vector(-1.328953, -1.104032, 0), App.Vector(-1.31438, -1.106692, 0), App.Vector(-1.277665, -1.113396, 0), App.Vector(-1.219395, -1.148761, 0), App.Vector(-1.13998, -1.189908, 0), App.Vector(-1.037696, -1.236396, 0), App.Vector(-0.911905, -1.281594, 0), App.Vector(-0.791459, -1.316487, 0), App.Vector(-0.681741, -1.33821, 0), App.Vector(-0.588351, -1.351645, 0), App.Vector(-0.486731, -1.357822, 0), App.Vector(-0.416323, -1.359274, 0), App.Vector(-0.379986, -1.360023, 0)], [4, 1, 1, 1, 1, 1, 1, 1, 1, 1, 4], [0, 0.444011661, 1.118686809, 2.027427457, 3.152785246, 4.501835654, 6.058794642, 6.93060907, 7.875047181, 8.903321363, 10], False, 3, [1, 1, 1, 1, 1, 1, 1, 1, 1, 1, 1, 1, 1], False), False)
sketch5.addGeometry(Part.BSplineCurve([App.Vector(-1.439949, -1.45202, 0), App.Vector(-1.439392, -1.422022, 0), App.Vector(-1.438376, -1.36733, 0), App.Vector(-1.435474, -1.292073, 0), App.Vector(-1.426873, -1.231031, 0), App.Vector(-1.414098, -1.182479, 0), App.Vector(-1.397911, -1.146169, 0), App.Vector(-1.378219, -1.120833, 0), App.Vector(-1.354578, -1.10607, 0), App.Vector(-1.337468, -1.104709, 0), App.Vector(-1.328953, -1.104032, 0)], [4, 1, 1, 1, 1, 1, 1, 1, 4], [0, 1.822902001, 3.323550125, 4.572139576, 5.559599618, 6.365772599, 6.969872283, 7.487324433, 8], False, 3, [1, 1, 1, 1, 1, 1, 1, 1, 1, 1, 1], False), False)
sketch5.addGeometry(Part.BSplineCurve([App.Vector(-0.28199, -2.063998, 0), App.Vector(-0.348357, -2.062828, 0), App.Vector(-0.477649, -2.060549, 0), App.Vector(-0.665044, -2.043493, 0), App.Vector(-0.837748, -2.016303, 0), App.Vector(-0.992434, -1.984356, 0), App.Vector(-1.123968, -1.947577, 0), App.Vector(-1.217307, -1.916285, 0), App.Vector(-1.278294, -1.892493, 0), App.Vector(-1.312123, -1.875369, 0), App.Vector(-1.339665, -1.861712, 0), App.Vector(-1.363907, -1.843835, 0), App.Vector(-1.385501, -1.820189, 0), App.Vector(-1.404423, -1.789261, 0), App.Vector(-1.415745, -1.753412, 0), App.Vector(-1.426468, -1.71251, 0), App.Vector(-1.432591, -1.662802, 0), App.Vector(-1.438004, -1.6028, 0), App.Vector(-1.439033, -1.531346, 0), App.Vector(-1.439629, -1.479681, 0), App.Vector(-1.439949, -1.45202, 0)], [4, 1, 1, 1, 1, 1, 1, 1, 1, 1, 1, 1, 1, 1, 1, 1, 1, 1, 4], [0, 2.352153803, 4.582342044, 6.662667079, 8.546514862, 10.177514967, 11.500105838, 12.035421318, 12.4951253, 12.844003289, 13.122835489, 13.557570542, 13.970909211, 14.396887048, 14.884011341, 15.46879923, 16.168353294, 17.019325374, 18], False, 3, [1, 1, 1, 1, 1, 1, 1, 1, 1, 1, 1, 1, 1, 1, 1, 1, 1, 1, 1, 1, 1], False), False)
sketch5.addConstraint(Sketcher.Constraint("Block", 0))
sketch5.addConstraint(Sketcher.Constraint("Block", 1))
sketch5.addConstraint(Sketcher.Constraint("Block", 2))
sketch5.addConstraint(Sketcher.Constraint("Block", 5))
sketch5.addConstraint(Sketcher.Constraint("Block", 6))
sketch5.addConstraint(Sketcher.Constraint("Block", 8))
sketch5.addConstraint(Sketcher.Constraint("Block", 10))
sketch5.addConstraint(Sketcher.Constraint("Block", 11))
sketch5.addConstraint(Sketcher.Constraint("Block", 12))
sketch5.addConstraint(Sketcher.Constraint("Block", 13))
sketch5.addConstraint(Sketcher.Constraint("Block", 14))
sketch5.addConstraint(Sketcher.Constraint("Block", 15))
sketch5.addConstraint(Sketcher.Constraint("Block", 16))
sketch5.addConstraint(Sketcher.Constraint("Coincident", 2, 1, 3, 1))
sketch5.addConstraint(Sketcher.Constraint("Coincident", 3, 2, 4, 1))
sketch5.addConstraint(Sketcher.Constraint("Coincident", 4, 2, 5, 2))
sketch5.addConstraint(Sketcher.Constraint("Coincident", 6, 1, 7, 1))
sketch5.addConstraint(Sketcher.Constraint("Coincident", 7, 2, 8, 2))
sketch5.addConstraint(Sketcher.Constraint("Coincident", 8, 1, 9, 1))
sketch5.addConstraint(Sketcher.Constraint("Coincident", 9, 2, 10, 2))
sketch5.addConstraint(Sketcher.Constraint("Vertical", 3))
sketch5.addConstraint(Sketcher.Constraint("Horizontal", 4))
pad4 = body2.newObject("PartDesign::Pad", "Pad003")
pad4.Profile = sketch5
pad4.Length = 0.4
pad4.Reversed = True

doc.recompute()
